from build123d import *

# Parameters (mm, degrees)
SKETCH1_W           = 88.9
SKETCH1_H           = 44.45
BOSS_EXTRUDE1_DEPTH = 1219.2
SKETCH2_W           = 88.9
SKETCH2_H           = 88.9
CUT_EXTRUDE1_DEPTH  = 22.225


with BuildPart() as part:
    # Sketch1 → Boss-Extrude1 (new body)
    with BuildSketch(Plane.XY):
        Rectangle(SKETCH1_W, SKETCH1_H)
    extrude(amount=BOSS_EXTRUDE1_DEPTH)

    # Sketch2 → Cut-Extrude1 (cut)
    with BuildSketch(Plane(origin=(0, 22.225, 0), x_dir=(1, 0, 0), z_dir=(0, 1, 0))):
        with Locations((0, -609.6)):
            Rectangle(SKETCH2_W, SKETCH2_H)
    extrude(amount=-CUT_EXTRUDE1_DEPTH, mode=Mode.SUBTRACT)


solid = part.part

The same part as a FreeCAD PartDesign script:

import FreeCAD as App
import Part
import Sketcher
Q = App.Units.Quantity


def add_polygon(sketch, points):
    """Adds a closed chain of lines whose ends are joined by coincident constraints."""
    first, n = sketch.GeometryCount, len(points)
    for a, b in zip(points, points[1:] + points[:1]):
        sketch.addGeometry(Part.LineSegment(App.Vector(*a, 0), App.Vector(*b, 0)), False)
    for i in range(n):
        sketch.addConstraint(Sketcher.Constraint("Coincident", first + i, 2, first + (i + 1) % n, 1))

doc = App.newDocument("Part")
body = doc.addObject("PartDesign::Body", "Body")

sketch1 = body.newObject("Sketcher::SketchObject", "Sketch")
sketch1.AttachmentSupport = (doc.getObject("XY_Plane"), [""])
sketch1.MapMode = "FlatFace"
add_polygon(sketch1, [(-44, 22), (-44, -22), (44, -22), (44, 22)])
sketch1.addConstraint([
    Sketcher.Constraint("Vertical", 0),
    Sketcher.Constraint("Horizontal", 1),
    Sketcher.Constraint("Vertical", 2),
    Sketcher.Constraint("Horizontal", 3),
    Sketcher.Constraint("Symmetric", 0, 2, 2, 2, -1, 1),
    Sketcher.Constraint("DistanceX", 1, 1, 1, 2, Q("3.5 in")),
    Sketcher.Constraint("DistanceY", 0, 2, 0, 1, Q("1.75 in")),
])
pad1 = body.newObject("PartDesign::Pad", "Pad")
pad1.Profile = sketch1
pad1.Length = Q("48 in")

sketch2 = body.newObject("Sketcher::SketchObject", "Sketch001")
sketch2.AttachmentSupport = (doc.getObject("XZ_Plane"), [""])
sketch2.MapMode = "FlatFace"
sketch2.AttachmentOffset = App.Placement(App.Vector(0, 0, -0.875 * 25.4), App.Rotation())
add_polygon(sketch2, [(-44, 565), (-44, 654), (44, 654), (44, 565)])
sketch2.addConstraint([
    Sketcher.Constraint("Vertical", 0),
    Sketcher.Constraint("Horizontal", 1),
    Sketcher.Constraint("Vertical", 2),
    Sketcher.Constraint("Horizontal", 3),
    Sketcher.Constraint("Equal", 3, 0),
    Sketcher.Constraint("DistanceX", 1, 1, 1, 2, Q("3.5 in")),
    Sketcher.Constraint("DistanceX", 0, 2, -1, 1, Q("1.75 in")),
    Sketcher.Constraint("DistanceY", -1, 1, 0, 2, Q("25.75 in")),
])
pocket1 = body.newObject("PartDesign::Pocket", "Pocket")
pocket1.Profile = sketch2
pocket1.Length = Q("0.875 in")
pocket1.Reversed = True

doc.recompute()
